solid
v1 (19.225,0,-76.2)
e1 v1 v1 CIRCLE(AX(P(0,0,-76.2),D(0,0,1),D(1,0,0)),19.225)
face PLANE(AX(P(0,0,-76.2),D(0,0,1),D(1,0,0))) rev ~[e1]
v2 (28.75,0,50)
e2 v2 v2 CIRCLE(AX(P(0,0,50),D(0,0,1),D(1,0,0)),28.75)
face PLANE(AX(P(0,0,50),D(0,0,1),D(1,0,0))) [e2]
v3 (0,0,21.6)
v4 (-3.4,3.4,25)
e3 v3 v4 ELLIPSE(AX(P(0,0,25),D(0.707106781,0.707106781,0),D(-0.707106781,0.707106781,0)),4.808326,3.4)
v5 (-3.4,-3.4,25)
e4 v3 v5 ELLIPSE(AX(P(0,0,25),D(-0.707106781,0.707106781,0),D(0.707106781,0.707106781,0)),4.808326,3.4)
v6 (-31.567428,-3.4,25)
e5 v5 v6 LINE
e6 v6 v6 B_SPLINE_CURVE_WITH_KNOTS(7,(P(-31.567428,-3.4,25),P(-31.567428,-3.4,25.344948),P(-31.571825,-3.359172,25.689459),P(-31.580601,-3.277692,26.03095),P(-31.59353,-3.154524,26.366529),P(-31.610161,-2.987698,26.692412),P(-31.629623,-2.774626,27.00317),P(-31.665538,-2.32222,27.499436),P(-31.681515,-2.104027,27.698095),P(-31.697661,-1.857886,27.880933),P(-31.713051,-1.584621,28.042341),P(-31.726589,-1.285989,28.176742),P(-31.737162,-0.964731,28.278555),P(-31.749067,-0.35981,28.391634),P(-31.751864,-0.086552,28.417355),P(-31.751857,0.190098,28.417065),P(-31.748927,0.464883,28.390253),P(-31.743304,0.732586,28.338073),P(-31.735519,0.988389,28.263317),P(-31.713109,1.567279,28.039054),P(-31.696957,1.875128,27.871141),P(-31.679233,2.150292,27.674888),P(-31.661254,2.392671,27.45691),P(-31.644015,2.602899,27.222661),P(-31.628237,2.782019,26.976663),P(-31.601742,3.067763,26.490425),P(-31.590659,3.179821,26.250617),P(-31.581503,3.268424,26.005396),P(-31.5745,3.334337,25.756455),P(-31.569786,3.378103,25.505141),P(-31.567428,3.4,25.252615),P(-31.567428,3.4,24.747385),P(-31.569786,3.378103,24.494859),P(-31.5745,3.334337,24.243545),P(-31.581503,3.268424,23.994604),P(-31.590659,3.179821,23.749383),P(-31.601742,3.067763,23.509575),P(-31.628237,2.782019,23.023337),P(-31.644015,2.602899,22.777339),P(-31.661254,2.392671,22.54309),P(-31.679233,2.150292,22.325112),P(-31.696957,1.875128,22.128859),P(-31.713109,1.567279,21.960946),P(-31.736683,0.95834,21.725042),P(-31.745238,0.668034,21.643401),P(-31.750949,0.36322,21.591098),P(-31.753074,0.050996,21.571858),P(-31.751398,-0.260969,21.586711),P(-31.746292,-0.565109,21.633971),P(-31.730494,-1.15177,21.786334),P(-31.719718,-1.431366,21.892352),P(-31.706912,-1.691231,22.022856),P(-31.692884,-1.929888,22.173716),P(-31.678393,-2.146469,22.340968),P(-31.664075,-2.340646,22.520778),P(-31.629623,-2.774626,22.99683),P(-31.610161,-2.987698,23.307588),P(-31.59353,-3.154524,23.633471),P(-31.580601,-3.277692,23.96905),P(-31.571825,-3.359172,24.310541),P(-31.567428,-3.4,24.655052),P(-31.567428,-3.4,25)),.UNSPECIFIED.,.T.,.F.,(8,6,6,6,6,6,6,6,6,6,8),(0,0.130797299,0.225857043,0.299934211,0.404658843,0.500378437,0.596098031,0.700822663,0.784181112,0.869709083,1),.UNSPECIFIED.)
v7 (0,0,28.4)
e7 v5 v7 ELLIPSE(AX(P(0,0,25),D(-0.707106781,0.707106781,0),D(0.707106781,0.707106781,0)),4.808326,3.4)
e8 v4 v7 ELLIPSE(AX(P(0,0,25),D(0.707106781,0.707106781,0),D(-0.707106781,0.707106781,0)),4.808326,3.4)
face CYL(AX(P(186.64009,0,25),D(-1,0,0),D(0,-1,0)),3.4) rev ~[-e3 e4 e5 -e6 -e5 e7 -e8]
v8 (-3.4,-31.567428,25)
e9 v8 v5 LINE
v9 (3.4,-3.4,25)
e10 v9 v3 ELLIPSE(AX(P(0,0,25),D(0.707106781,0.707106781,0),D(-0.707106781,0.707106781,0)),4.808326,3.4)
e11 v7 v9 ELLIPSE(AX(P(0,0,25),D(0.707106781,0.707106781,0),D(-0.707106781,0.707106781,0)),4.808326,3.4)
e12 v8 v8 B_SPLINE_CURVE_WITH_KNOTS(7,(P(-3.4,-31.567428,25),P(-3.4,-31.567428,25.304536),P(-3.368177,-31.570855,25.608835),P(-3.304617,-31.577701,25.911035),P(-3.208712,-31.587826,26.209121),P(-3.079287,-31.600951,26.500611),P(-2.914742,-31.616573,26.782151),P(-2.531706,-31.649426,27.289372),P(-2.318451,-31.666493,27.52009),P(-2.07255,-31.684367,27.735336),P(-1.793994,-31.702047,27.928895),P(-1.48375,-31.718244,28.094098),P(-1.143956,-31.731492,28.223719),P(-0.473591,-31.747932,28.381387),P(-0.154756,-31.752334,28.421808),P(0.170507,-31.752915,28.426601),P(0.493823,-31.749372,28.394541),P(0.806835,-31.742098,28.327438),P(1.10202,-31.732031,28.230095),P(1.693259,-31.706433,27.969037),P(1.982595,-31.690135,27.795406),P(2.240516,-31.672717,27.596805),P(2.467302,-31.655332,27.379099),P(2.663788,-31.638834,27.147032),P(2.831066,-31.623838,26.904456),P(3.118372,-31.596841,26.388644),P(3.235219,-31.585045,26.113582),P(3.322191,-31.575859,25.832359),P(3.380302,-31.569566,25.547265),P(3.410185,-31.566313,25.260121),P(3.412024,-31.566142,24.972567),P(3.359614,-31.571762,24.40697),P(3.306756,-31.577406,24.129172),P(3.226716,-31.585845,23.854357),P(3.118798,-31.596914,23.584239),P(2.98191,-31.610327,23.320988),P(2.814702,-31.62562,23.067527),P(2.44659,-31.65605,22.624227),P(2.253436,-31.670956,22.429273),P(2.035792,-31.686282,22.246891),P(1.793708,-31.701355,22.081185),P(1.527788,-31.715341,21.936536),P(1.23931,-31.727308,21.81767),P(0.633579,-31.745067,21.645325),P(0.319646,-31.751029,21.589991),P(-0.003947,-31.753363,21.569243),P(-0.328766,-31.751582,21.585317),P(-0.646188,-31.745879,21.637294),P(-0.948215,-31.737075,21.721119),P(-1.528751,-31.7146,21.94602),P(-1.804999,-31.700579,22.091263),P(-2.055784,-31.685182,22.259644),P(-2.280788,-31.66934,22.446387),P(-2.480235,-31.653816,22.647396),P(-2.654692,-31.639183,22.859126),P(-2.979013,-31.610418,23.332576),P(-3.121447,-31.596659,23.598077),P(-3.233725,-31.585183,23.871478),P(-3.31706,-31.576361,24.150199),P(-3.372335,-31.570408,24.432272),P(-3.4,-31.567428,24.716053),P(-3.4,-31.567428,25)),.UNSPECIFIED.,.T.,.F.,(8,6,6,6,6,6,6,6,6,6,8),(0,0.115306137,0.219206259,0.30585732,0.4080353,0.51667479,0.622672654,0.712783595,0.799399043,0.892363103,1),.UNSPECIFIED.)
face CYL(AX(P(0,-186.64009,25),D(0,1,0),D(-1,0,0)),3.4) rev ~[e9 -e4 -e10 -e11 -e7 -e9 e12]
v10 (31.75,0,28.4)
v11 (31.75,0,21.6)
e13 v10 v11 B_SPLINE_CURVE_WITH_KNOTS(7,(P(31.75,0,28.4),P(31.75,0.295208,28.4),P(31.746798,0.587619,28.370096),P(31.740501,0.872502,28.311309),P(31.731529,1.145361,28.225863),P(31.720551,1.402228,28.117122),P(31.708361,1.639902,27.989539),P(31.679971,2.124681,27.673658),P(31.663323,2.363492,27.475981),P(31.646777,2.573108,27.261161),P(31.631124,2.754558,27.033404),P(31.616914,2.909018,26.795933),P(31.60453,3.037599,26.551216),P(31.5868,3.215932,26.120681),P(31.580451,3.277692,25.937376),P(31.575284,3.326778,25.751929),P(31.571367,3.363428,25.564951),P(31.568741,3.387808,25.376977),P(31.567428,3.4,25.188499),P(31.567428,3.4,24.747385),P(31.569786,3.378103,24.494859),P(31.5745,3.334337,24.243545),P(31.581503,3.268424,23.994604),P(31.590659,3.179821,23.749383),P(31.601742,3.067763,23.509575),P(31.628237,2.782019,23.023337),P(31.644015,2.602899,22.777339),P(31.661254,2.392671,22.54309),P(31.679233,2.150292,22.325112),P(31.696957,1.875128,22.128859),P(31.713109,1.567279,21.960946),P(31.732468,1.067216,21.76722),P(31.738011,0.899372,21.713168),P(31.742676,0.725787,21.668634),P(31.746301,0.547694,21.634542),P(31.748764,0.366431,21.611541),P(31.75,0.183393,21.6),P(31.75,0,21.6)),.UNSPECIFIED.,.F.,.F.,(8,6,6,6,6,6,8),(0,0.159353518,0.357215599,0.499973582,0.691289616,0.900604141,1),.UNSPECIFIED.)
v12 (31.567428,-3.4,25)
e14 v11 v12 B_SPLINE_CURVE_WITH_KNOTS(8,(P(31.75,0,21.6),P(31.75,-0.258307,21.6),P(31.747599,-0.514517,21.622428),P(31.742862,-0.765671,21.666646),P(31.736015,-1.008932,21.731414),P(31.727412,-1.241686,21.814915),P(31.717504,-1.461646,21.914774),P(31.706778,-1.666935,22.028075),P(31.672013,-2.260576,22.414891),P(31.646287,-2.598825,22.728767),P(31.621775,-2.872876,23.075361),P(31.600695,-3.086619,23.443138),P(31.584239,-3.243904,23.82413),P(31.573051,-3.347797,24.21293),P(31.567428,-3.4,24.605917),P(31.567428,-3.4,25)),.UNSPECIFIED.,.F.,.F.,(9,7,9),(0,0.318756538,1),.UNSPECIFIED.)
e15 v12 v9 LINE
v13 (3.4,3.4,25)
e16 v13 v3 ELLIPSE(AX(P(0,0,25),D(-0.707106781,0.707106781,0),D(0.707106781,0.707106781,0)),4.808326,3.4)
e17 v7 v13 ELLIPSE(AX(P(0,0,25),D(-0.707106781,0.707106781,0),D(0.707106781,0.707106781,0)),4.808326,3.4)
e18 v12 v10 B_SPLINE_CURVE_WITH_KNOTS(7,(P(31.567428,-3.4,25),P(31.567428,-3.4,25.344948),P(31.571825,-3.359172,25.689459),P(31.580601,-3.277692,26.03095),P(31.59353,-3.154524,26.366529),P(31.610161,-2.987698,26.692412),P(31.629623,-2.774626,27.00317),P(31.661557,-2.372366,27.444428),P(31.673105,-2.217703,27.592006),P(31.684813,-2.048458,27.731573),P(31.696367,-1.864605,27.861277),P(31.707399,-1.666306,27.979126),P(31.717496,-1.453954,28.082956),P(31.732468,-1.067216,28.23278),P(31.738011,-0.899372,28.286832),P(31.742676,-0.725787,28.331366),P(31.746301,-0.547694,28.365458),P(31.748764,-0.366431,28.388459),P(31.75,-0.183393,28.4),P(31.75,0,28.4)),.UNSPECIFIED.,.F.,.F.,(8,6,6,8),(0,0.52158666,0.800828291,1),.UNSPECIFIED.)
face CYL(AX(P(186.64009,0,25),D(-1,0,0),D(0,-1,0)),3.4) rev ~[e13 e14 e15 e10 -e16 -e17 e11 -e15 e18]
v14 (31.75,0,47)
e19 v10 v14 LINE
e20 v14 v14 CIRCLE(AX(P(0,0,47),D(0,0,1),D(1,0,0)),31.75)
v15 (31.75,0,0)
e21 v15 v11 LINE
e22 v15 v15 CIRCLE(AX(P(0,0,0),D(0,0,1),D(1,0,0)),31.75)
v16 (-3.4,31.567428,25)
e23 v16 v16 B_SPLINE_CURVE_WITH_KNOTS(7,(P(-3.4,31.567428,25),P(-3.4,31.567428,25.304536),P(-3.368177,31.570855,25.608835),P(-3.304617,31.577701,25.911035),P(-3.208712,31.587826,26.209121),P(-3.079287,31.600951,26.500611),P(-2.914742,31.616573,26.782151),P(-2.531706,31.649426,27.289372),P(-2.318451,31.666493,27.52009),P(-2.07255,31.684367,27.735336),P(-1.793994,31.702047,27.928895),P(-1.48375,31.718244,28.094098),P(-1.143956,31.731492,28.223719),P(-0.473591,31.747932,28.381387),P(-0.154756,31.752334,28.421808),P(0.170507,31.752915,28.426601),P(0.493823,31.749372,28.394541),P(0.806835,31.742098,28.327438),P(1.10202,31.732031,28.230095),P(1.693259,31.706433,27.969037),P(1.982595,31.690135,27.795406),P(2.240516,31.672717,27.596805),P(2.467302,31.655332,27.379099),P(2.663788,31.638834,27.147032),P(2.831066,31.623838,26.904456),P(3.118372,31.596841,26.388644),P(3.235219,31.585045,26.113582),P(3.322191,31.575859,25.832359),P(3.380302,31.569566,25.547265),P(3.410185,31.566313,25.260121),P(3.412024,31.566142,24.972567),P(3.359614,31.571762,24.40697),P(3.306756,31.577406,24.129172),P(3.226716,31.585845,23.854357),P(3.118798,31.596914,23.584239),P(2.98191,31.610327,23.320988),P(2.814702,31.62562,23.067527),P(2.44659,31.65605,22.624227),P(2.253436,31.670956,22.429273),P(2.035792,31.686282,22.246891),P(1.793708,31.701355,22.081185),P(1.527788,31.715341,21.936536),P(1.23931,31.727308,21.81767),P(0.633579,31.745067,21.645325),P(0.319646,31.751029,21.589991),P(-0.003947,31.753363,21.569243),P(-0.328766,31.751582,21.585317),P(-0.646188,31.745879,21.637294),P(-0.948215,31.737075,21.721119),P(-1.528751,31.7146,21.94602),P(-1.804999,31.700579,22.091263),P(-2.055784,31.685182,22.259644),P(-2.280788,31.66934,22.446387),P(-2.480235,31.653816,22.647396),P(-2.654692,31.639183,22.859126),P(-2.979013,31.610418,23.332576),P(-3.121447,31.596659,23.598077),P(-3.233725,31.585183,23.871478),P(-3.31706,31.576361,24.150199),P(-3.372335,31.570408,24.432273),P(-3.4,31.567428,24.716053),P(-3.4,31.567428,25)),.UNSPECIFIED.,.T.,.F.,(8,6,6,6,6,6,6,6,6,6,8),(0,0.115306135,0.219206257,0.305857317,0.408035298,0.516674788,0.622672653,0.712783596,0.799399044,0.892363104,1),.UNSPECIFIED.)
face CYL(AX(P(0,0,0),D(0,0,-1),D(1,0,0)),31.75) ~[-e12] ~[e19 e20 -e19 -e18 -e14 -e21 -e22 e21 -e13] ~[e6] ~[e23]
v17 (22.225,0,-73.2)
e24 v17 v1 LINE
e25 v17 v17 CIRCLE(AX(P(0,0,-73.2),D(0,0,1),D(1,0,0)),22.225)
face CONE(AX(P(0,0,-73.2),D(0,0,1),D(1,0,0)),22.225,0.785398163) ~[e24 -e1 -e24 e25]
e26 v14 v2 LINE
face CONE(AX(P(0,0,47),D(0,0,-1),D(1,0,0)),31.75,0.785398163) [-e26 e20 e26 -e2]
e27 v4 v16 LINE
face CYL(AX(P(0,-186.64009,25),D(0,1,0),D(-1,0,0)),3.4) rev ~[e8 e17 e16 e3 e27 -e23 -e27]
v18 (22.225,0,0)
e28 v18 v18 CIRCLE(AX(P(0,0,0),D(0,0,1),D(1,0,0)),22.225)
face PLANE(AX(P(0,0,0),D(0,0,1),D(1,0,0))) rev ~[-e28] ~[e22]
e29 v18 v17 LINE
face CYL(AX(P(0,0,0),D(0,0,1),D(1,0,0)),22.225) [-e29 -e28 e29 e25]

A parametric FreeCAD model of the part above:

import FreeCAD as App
import Part
import Sketcher


def edges_at(feature, points):
    """Names of the edges that pass closest to the given points."""
    edges = feature.Shape.Edges
    near = lambda p: min(range(len(edges)), key=lambda i: edges[i].distToShape(Part.Vertex(*p))[0])
    return sorted({f"Edge{near(p) + 1}" for p in points})

doc = App.newDocument("Part")
body = doc.addObject("PartDesign::Body", "Body")

# Sketch on XY plane
sketch1 = body.newObject("Sketcher::SketchObject", "Sketch")
sketch1.AttachmentSupport = (doc.getObject("XY_Plane"), [""])
sketch1.MapMode = "FlatFace"
sketch1.addGeometry(Part.Circle(App.Vector(0, 0, 0), App.Vector(0, 0, 1), 22), False)
sketch1.addConstraint([
    Sketcher.Constraint("Coincident", 0, 3, -1, 1),
    Sketcher.Constraint("Diameter", 0, 44.45),
])
pad1 = body.newObject("PartDesign::Pad", "Pad")
pad1.Profile = sketch1
pad1.Length = 76.2
pad1.Reversed = True

# Sketch on XY plane
sketch2 = body.newObject("Sketcher::SketchObject", "Sketch001")
sketch2.AttachmentSupport = (doc.getObject("XY_Plane"), [""])
sketch2.MapMode = "FlatFace"
sketch2.addGeometry(Part.Circle(App.Vector(0, 0, 0), App.Vector(0, 0, 1), 32), False)
sketch2.addConstraint([
    Sketcher.Constraint("Coincident", 0, 3, -1, 1),
    Sketcher.Constraint("Diameter", 0, 63.5),
])
pad2 = body.newObject("PartDesign::Pad", "Pad001")
pad2.Profile = sketch2
pad2.Length = 50
doc.recompute()

chamfer = body.newObject("PartDesign::Chamfer", "Chamfer")
chamfer.Base = (pad2, edges_at(pad2, [(-31.75, 0, 50), (-22.225, 0, -76.2)]))
chamfer.Size = 3

# Sketch on XZ plane
sketch3 = body.newObject("Sketcher::SketchObject", "Sketch002")
sketch3.AttachmentSupport = (doc.getObject("XZ_Plane"), [""])
sketch3.MapMode = "FlatFace"
sketch3.AttachmentOffset = App.Placement(App.Vector(0, 0, 31.75), App.Rotation())
sketch3.addGeometry(Part.Circle(App.Vector(0, 25, 0), App.Vector(0, 0, 1), 3.4), False)
sketch3.addConstraint([
    Sketcher.Constraint("PointOnObject", 0, 3, -2),
    Sketcher.Constraint("Diameter", 0, 6.8),
    Sketcher.Constraint("DistanceY", -1, 1, 0, 3, 25.0),
])
doc.recompute()
hole = body.newObject("PartDesign::Hole", "Hole")
hole.Profile = sketch3
hole.ThreadType = "None"
hole.Diameter = 6.8
hole.DepthType = "ThroughAll"

# Sketch on YZ plane
sketch4 = body.newObject("Sketcher::SketchObject", "Sketch003")
sketch4.AttachmentSupport = (doc.getObject("YZ_Plane"), [""])
sketch4.MapMode = "FlatFace"
sketch4.AttachmentOffset = App.Placement(App.Vector(0, 0, 31.75), App.Rotation())
sketch4.addGeometry(Part.Circle(App.Vector(0, 25, 0), App.Vector(0, 0, 1), 3.4), False)
sketch4.addConstraint([
    Sketcher.Constraint("PointOnObject", 0, 3, -2),
    Sketcher.Constraint("Diameter", 0, 6.8),
    Sketcher.Constraint("DistanceY", -1, 1, 0, 3, 25.0),
])
doc.recompute()
hole2 = body.newObject("PartDesign::Hole", "Hole001")
hole2.Profile = sketch4
hole2.ThreadType = "None"
hole2.Diameter = 6.8
hole2.DepthType = "ThroughAll"

doc.recompute()
